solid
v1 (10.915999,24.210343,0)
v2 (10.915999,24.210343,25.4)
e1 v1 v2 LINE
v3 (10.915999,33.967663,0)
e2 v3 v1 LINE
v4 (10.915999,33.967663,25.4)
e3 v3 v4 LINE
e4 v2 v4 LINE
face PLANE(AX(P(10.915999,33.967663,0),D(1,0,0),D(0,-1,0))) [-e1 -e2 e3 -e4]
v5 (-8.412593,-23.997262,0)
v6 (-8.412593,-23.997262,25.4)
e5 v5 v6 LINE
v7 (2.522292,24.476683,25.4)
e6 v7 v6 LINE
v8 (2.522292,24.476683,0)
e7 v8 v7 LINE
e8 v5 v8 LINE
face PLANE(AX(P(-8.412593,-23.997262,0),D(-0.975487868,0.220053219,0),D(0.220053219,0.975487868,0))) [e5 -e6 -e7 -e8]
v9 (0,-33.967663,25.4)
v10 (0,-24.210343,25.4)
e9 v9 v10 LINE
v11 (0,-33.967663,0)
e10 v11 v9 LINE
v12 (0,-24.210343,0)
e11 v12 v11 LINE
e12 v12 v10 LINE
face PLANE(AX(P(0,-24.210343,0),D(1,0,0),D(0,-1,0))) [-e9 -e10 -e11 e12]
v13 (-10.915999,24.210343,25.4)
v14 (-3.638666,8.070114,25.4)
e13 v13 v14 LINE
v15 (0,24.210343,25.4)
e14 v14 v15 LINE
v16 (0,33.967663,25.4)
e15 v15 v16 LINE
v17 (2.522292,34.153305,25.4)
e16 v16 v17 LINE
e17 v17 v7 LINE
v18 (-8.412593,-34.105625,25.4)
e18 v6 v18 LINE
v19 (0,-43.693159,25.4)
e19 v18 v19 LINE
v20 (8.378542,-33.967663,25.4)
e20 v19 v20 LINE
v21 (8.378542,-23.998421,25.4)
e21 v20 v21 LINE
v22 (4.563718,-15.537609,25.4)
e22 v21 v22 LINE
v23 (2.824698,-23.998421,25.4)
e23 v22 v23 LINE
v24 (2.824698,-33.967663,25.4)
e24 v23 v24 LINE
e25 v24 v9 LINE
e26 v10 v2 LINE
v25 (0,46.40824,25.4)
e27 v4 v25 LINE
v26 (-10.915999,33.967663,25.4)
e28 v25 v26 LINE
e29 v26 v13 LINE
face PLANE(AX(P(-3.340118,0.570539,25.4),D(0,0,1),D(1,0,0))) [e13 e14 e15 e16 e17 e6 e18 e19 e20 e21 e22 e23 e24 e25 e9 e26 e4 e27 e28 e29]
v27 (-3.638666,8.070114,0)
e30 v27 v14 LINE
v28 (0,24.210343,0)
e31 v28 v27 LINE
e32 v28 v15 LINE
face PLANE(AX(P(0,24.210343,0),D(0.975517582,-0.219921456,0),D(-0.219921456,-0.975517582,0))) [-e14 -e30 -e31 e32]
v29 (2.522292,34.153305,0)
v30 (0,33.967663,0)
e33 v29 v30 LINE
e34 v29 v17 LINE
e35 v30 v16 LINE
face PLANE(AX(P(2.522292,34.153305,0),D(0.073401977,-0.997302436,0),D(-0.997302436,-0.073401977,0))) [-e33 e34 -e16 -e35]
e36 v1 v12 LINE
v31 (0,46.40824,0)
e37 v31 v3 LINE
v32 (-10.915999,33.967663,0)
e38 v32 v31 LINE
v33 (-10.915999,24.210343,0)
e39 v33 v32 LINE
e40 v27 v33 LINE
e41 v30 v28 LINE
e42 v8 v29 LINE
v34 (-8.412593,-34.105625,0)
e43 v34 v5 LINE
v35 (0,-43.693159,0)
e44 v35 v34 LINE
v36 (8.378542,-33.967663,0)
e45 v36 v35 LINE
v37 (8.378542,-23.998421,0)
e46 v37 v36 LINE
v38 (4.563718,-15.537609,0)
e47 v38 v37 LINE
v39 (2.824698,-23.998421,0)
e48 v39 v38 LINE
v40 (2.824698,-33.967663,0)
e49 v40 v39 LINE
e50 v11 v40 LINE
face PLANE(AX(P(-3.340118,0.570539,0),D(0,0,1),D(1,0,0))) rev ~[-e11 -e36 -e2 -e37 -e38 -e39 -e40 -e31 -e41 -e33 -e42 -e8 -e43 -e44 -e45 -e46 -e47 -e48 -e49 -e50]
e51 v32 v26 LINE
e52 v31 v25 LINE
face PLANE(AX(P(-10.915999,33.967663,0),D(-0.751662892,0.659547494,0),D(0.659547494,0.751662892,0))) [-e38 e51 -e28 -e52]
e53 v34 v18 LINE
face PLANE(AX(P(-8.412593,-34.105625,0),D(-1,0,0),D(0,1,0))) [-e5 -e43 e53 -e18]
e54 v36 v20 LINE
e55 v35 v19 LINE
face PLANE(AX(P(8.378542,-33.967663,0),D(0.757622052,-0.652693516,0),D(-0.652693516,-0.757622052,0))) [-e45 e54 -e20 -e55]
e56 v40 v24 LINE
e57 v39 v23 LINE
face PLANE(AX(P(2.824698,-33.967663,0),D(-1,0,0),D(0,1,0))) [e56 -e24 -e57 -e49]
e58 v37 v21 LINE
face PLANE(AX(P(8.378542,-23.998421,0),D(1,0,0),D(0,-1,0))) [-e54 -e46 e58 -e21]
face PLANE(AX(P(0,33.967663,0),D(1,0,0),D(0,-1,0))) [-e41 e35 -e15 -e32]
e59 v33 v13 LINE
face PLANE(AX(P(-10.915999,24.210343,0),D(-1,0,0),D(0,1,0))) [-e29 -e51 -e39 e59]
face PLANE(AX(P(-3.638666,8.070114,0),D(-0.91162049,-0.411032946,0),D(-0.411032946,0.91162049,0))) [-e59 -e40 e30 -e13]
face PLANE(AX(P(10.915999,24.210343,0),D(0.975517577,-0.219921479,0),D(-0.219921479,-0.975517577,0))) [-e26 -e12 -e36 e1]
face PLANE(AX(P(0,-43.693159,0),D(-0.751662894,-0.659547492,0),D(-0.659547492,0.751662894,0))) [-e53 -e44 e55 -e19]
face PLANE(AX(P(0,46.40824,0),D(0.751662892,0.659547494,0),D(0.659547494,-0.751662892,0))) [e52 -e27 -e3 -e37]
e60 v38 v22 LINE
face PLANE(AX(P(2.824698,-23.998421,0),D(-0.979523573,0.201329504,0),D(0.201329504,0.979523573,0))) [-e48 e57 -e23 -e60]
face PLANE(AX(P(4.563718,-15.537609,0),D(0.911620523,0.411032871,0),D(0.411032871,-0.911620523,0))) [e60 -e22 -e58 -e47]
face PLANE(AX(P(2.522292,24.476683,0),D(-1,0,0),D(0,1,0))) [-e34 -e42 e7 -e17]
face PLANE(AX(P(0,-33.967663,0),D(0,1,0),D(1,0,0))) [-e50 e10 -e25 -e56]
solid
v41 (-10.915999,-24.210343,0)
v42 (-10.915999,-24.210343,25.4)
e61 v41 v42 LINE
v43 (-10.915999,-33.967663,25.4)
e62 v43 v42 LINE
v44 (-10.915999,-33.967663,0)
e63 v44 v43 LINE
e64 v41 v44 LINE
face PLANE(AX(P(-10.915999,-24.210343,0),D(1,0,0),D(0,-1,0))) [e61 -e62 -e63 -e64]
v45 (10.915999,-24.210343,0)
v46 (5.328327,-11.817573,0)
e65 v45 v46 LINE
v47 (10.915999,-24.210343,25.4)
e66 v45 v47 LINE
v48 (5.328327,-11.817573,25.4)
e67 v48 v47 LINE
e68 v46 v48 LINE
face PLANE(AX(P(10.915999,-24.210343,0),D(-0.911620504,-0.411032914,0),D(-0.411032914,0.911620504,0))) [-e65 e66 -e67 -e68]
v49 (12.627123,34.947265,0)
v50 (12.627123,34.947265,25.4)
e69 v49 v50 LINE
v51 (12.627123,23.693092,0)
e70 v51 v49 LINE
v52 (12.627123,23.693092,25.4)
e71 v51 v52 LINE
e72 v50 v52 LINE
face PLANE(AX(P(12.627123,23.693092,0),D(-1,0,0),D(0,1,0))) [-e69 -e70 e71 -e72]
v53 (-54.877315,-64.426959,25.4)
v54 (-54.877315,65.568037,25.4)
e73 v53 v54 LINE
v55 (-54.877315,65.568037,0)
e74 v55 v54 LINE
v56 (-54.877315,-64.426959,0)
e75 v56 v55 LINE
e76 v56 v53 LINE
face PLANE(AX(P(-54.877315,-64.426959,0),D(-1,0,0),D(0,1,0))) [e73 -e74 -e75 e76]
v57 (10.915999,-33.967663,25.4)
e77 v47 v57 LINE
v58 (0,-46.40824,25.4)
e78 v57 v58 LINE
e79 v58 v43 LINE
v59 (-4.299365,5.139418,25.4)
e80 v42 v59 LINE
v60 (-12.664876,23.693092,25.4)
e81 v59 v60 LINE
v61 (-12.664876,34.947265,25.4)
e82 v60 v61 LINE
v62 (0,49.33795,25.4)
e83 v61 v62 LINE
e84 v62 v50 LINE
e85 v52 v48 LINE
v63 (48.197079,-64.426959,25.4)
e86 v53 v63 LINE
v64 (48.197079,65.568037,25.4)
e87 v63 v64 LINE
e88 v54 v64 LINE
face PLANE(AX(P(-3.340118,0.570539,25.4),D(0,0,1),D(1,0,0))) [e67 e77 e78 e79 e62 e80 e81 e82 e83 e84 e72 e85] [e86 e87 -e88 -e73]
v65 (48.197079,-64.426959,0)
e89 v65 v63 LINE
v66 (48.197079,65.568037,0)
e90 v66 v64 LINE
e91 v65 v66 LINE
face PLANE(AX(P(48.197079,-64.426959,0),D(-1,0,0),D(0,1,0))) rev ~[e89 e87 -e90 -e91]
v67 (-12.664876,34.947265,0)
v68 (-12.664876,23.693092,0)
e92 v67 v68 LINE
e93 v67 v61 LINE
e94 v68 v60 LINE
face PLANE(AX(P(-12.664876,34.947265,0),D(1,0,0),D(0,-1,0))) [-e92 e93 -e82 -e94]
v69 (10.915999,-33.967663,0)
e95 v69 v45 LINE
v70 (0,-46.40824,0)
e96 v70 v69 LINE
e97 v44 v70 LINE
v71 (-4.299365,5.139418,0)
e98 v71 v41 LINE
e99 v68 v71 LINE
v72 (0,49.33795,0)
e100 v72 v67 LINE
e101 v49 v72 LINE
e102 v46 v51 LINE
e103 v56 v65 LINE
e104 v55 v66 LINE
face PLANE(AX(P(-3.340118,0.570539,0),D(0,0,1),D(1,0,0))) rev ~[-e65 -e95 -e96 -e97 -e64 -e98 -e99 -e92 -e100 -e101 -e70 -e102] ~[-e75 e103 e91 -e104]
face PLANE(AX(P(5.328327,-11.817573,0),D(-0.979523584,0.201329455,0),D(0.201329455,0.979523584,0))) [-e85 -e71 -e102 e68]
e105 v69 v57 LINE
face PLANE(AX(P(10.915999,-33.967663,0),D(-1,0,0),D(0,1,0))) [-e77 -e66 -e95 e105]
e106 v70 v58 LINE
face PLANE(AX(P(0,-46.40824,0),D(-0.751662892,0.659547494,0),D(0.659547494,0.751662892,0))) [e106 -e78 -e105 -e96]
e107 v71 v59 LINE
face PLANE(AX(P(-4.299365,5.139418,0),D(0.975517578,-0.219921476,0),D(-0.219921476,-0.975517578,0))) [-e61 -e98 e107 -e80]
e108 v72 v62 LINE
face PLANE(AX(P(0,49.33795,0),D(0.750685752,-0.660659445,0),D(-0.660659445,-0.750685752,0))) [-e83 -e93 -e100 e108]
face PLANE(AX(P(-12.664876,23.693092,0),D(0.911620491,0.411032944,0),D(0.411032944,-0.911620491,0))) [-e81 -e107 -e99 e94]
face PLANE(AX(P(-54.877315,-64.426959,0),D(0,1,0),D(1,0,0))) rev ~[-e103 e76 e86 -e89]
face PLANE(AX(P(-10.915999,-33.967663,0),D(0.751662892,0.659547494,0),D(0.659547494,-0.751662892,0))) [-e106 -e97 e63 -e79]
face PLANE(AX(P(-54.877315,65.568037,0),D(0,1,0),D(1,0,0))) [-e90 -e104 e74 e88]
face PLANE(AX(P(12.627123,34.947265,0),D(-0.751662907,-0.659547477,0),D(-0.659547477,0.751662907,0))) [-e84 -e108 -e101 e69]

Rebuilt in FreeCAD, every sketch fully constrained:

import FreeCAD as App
import Part
import Sketcher

V = App.Vector
Q = App.Units.Quantity

doc = App.newDocument("Part")
body = doc.addObject("PartDesign::Body", "Body")
body.AllowCompound = True

# Sketch on XY plane
sketch1 = doc.addObject("Sketcher::SketchObject", "Sketch")
body.addObject(sketch1)
sketch1.AttachmentSupport = (doc.XY_Plane, [""])
sketch1.MapMode = "FlatFace"
sketch1.addGeometry([
    Part.LineSegment(V(-54.877315, 65.568037, 0), V(-54.877315, -64.426959, 0)),
    Part.LineSegment(V(-54.877315, -64.426959, 0), V(48.197079, -64.426959, 0)),
    Part.LineSegment(V(48.197079, -64.426959, 0), V(48.197079, 65.568037, 0)),
    Part.LineSegment(V(48.197079, 65.568037, 0), V(-54.877315, 65.568037, 0)),
], False)
sketch1.addConstraint([
    Sketcher.Constraint("Coincident", 0, 2, 1, 1),
    Sketcher.Constraint("Coincident", 1, 2, 2, 1),
    Sketcher.Constraint("Coincident", 2, 2, 3, 1),
    Sketcher.Constraint("Coincident", 3, 2, 0, 1),
    Sketcher.Constraint("Vertical", 0),
    Sketcher.Constraint("Horizontal", 1),
    Sketcher.Constraint("Vertical", 2),
    Sketcher.Constraint("Horizontal", 3),
    Sketcher.Constraint("DistanceX", 1, 1, 1, 2, 103.074394),
    Sketcher.Constraint("DistanceY", 0, 2, 0, 1, 129.994996),
    Sketcher.Constraint("DistanceY", 0, 2, -1, 1, 64.426959),
    Sketcher.Constraint("DistanceX", -1, 1, 1, 2, 48.197079),
])
pad1 = doc.addObject("PartDesign::Pad", "Pad")
body.addObject(pad1)
pad1.Profile = sketch1
pad1.Length = Q("1 in")

# Sketch on XY plane
sketch2 = doc.addObject("Sketcher::SketchObject", "Sketch001")
body.addObject(sketch2)
sketch2.AttachmentSupport = (doc.XY_Plane, [""])
sketch2.MapMode = "FlatFace"
sketch2.addGeometry([
    Part.LineSegment(V(-4.299365, 5.139418, 0), V(-10.915999, -24.210343, 0)),  # 0
    Part.LineSegment(V(-10.915999, -24.210343, 0), V(-10.915999, -33.967663, 0)),  # 1
    Part.LineSegment(V(-10.915999, -33.967663, 0), V(0, -46.40824, 0)),  # 2
    Part.LineSegment(V(0, -46.40824, 0), V(10.915999, -33.967663, 0)),  # 3
    Part.LineSegment(V(10.915999, -33.967663, 0), V(10.915999, -24.210343, 0)),  # 4
    Part.LineSegment(V(10.915999, -24.210343, 0), V(5.328327, -11.817573, 0)),  # 5
    Part.LineSegment(V(5.328327, -11.817573, 0), V(12.627123, 23.693092, 0)),  # 6
    Part.LineSegment(V(12.627123, 23.693092, 0), V(12.627123, 34.947265, 0)),  # 7
    Part.LineSegment(V(12.627123, 34.947265, 0), V(0, 49.33795, 0)),  # 8
    Part.LineSegment(V(0, 49.33795, 0), V(-12.664876, 34.947265, 0)),  # 9
    Part.LineSegment(V(-12.664876, 34.947265, 0), V(-12.664876, 23.693092, 0)),  # 10
    Part.LineSegment(V(-12.664876, 23.693092, 0), V(-4.299365, 5.139418, 0)),  # 11
    Part.LineSegment(V(0, 24.210343, 0), V(-3.638666, 8.070114, 0)),  # 12
    Part.LineSegment(V(-3.638666, 8.070114, 0), V(-10.915999, 24.210343, 0)),  # 13
    Part.LineSegment(V(-10.915999, 24.210343, 0), V(-10.915999, 33.967663, 0)),  # 14
    Part.LineSegment(V(-10.915999, 33.967663, 0), V(0, 46.40824, 0)),  # 15
    Part.LineSegment(V(0, 46.40824, 0), V(10.915999, 33.967663, 0)),  # 16
    Part.LineSegment(V(10.915999, 33.967663, 0), V(10.915999, 24.210343, 0)),  # 17
    Part.LineSegment(V(10.915999, 24.210343, 0), V(0, -24.210343, 0)),  # 18
    Part.LineSegment(V(0, -24.210343, 0), V(0, -33.967663, 0)),  # 19
    Part.LineSegment(V(0, -33.967663, 0), V(2.824698, -33.967663, 0)),  # 20
    Part.LineSegment(V(2.824698, -33.967663, 0), V(2.824698, -23.998421, 0)),  # 21
    Part.LineSegment(V(2.824698, -23.998421, 0), V(4.563718, -15.537609, 0)),  # 22
    Part.LineSegment(V(4.563718, -15.537609, 0), V(8.378542, -23.998421, 0)),  # 23
    Part.LineSegment(V(8.378542, -23.998421, 0), V(8.378542, -33.967663, 0)),  # 24
    Part.LineSegment(V(8.378542, -33.967663, 0), V(0, -43.693159, 0)),  # 25
    Part.LineSegment(V(0, -43.693159, 0), V(-8.412593, -34.105625, 0)),  # 26
    Part.LineSegment(V(-8.412593, -34.105625, 0), V(-8.412593, -23.997262, 0)),  # 27
    Part.LineSegment(V(-8.412593, -23.997262, 0), V(2.522292, 24.476683, 0)),  # 28
    Part.LineSegment(V(2.522292, 24.476683, 0), V(2.522292, 34.153305, 0)),  # 29
    Part.LineSegment(V(2.522292, 34.153305, 0), V(0, 33.967663, 0)),  # 30
    Part.LineSegment(V(0, 33.967663, 0), V(0, 24.210343, 0)),  # 31
], False)
sketch2.addConstraint([
    Sketcher.Constraint("Coincident", 0, 2, 1, 1),
    Sketcher.Constraint("Coincident", 1, 2, 2, 1),
    Sketcher.Constraint("Coincident", 2, 2, 3, 1),
    Sketcher.Constraint("Coincident", 3, 2, 4, 1),
    Sketcher.Constraint("Coincident", 4, 2, 5, 1),
    Sketcher.Constraint("Coincident", 5, 2, 6, 1),
    Sketcher.Constraint("Coincident", 6, 2, 7, 1),
    Sketcher.Constraint("Coincident", 7, 2, 8, 1),
    Sketcher.Constraint("Coincident", 8, 2, 9, 1),
    Sketcher.Constraint("Coincident", 9, 2, 10, 1),
    Sketcher.Constraint("Coincident", 10, 2, 11, 1),
    Sketcher.Constraint("Coincident", 11, 2, 0, 1),
    Sketcher.Constraint("Coincident", 12, 2, 13, 1),
    Sketcher.Constraint("Coincident", 13, 2, 14, 1),
    Sketcher.Constraint("Coincident", 14, 2, 15, 1),
    Sketcher.Constraint("Coincident", 15, 2, 16, 1),
    Sketcher.Constraint("Coincident", 16, 2, 17, 1),
    Sketcher.Constraint("Coincident", 17, 2, 18, 1),
    Sketcher.Constraint("Coincident", 18, 2, 19, 1),
    Sketcher.Constraint("Coincident", 19, 2, 20, 1),
    Sketcher.Constraint("Coincident", 20, 2, 21, 1),
    Sketcher.Constraint("Coincident", 21, 2, 22, 1),
    Sketcher.Constraint("Coincident", 22, 2, 23, 1),
    Sketcher.Constraint("Coincident", 23, 2, 24, 1),
    Sketcher.Constraint("Coincident", 24, 2, 25, 1),
    Sketcher.Constraint("Coincident", 25, 2, 26, 1),
    Sketcher.Constraint("Coincident", 26, 2, 27, 1),
    Sketcher.Constraint("Coincident", 27, 2, 28, 1),
    Sketcher.Constraint("Coincident", 28, 2, 29, 1),
    Sketcher.Constraint("Coincident", 29, 2, 30, 1),
    Sketcher.Constraint("Coincident", 30, 2, 31, 1),
    Sketcher.Constraint("Coincident", 31, 2, 12, 1),
    Sketcher.Constraint("Vertical", 1),
    Sketcher.Constraint("Vertical", 4),
    Sketcher.Constraint("Vertical", 7),
    Sketcher.Constraint("Vertical", 10),
    Sketcher.Constraint("Vertical", 14),
    Sketcher.Constraint("Vertical", 17),
    Sketcher.Constraint("Vertical", 19),
    Sketcher.Constraint("Horizontal", 20),
    Sketcher.Constraint("Vertical", 21),
    Sketcher.Constraint("Vertical", 24),
    Sketcher.Constraint("Vertical", 27),
    Sketcher.Constraint("Vertical", 29),
    Sketcher.Constraint("Vertical", 31),
    Sketcher.Constraint("PointOnObject", 2, 2, -2),
    Sketcher.Constraint("PointOnObject", 8, 2, -2),
    Sketcher.Constraint("PointOnObject", 15, 2, -2),
    Sketcher.Constraint("PointOnObject", 18, 2, -2),
    Sketcher.Constraint("PointOnObject", 25, 2, -2),
    Sketcher.Constraint("PointOnObject", 30, 2, -2),
    Sketcher.Constraint("DistanceX", 20, 1, 20, 2, 2.824698),
    Sketcher.Constraint("DistanceX", 23, 2, 4, 2, Q("0.0998999 in")),
    Sketcher.Constraint("Distance", 26, 12.755098),
    Sketcher.Constraint("Distance", 28, 49.692002),
    Sketcher.Constraint("DistanceY", 1, 2, 1, 1, 9.75732),
    Sketcher.Constraint("DistanceY", 4, 1, 4, 2, 9.75732),
    Sketcher.Constraint("DistanceY", 14, 1, 14, 2, 9.75732),
    Sketcher.Constraint("DistanceY", 17, 2, 17, 1, 9.75732),
    Sketcher.Constraint("DistanceY", 19, 2, 19, 1, 9.75732),
    Sketcher.Constraint("DistanceY", 31, 2, 31, 1, 9.75732),
    Sketcher.Constraint("DistanceX", 0, 2, -1, 1, 10.915999),
    Sketcher.Constraint("DistanceX", -1, 1, 3, 2, 10.915999),
    Sketcher.Constraint("DistanceX", 13, 2, -1, 1, 10.915999),
    Sketcher.Constraint("DistanceX", -1, 1, 16, 2, 10.915999),
    Sketcher.Constraint("DistanceX", 9, 2, 7, 2, 25.291999),
    Sketcher.Constraint("DistanceX", 11, 2, 12, 2, 0.660699),
    Sketcher.Constraint("DistanceY", 14, 2, 9, 2, 0.979602),
    Sketcher.Constraint("DistanceY", 14, 2, 7, 2, 0.979602),
    Sketcher.Constraint("DistanceY", 16, 2, 7, 2, 0.979602),
    Sketcher.Constraint("DistanceY", 1, 2, 27, 2, 9.970401),
    Sketcher.Constraint("Distance", 2, 16.55074),
    Sketcher.Constraint("Distance", 3, 16.55074),
    Sketcher.Constraint("Distance", 5, 13.59422),
    Sketcher.Constraint("Distance", 8, 19.145131),
    Sketcher.Constraint("Distance", 11, 20.35241),
    Sketcher.Constraint("Distance", 15, 16.55074),
    Sketcher.Constraint("Distance", 22, 8.637681),
    Sketcher.Constraint("Distance", 25, 12.83687),
    Sketcher.Constraint("DistanceY", 7, 1, 7, 2, 11.254173),
    Sketcher.Constraint("DistanceY", 10, 2, 10, 1, 11.254173),
    Sketcher.Constraint("DistanceY", 21, 1, 21, 2, 9.969242),
    Sketcher.Constraint("DistanceY", 24, 2, 24, 1, 9.969242),
    Sketcher.Constraint("DistanceY", 27, 1, 27, 2, 10.108363),
    Sketcher.Constraint("DistanceY", 29, 1, 29, 2, 9.676622),
    Sketcher.Constraint("DistanceY", 2, 2, -1, 1, 46.40824),
    Sketcher.Constraint("DistanceY", -1, 1, 6, 2, 23.693092),
    Sketcher.Constraint("DistanceY", -1, 1, 8, 2, 49.33795),
    Sketcher.Constraint("DistanceY", 21, 2, -1, 1, 23.998421),
    Sketcher.Constraint("DistanceY", 22, 2, -1, 1, 15.537609),
    Sketcher.Constraint("DistanceY", 23, 2, -1, 1, 23.998421),
    Sketcher.Constraint("DistanceX", 5, 2, 4, 2, 5.587672),
    Sketcher.Constraint("DistanceY", 5, 2, 11, 2, 16.956991),
    Sketcher.Constraint("DistanceY", 12, 2, 9, 2, 26.877151),
    Sketcher.Constraint("DistanceY", 17, 2, 28, 2, 0.26634),
    Sketcher.Constraint("DistanceY", 28, 2, 30, 2, 9.49098),
])
pocket1 = doc.addObject("PartDesign::Pocket", "Pocket")
body.addObject(pocket1)
pocket1.Profile = sketch2
pocket1.Length = Q("1.72 in")
pocket1.Reversed = True

doc.recompute()
